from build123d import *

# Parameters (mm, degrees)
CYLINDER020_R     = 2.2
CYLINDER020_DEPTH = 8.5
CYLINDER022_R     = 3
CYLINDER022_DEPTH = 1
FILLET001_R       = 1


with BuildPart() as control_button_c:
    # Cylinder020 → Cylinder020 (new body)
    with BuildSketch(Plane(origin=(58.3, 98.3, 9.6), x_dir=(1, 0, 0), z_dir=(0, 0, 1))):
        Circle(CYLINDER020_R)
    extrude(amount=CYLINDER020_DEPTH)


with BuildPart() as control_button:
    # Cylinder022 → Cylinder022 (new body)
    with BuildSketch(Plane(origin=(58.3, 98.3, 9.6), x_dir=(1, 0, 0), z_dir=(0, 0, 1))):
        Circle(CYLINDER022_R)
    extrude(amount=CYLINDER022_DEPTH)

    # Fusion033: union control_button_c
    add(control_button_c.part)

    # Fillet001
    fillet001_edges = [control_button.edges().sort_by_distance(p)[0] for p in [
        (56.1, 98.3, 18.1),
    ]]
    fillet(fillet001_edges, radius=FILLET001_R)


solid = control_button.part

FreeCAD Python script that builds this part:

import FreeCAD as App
import Part
import Sketcher
from FreeCAD import Vector


def edges_at(feature, points):
    """Names of the edges that pass closest to the given points."""
    edges = feature.Shape.Edges
    near = lambda p: min(range(len(edges)), key=lambda i: edges[i].distToShape(Part.Vertex(*p))[0])
    return sorted({f"Edge{near(p) + 1}" for p in points})

doc = App.newDocument("Part")
params = doc.addObject("Spreadsheet::Sheet", "Params")
for row, (alias, value) in enumerate([
    ("sketch1_diameter", "4.4 mm"),
    ("pad1_length", "8.5 mm"),
    ("sketch2_diameter", "6 mm"),
    ("pad2_length", "1 mm"),
    ("fillet_radius", "1 mm"),
], start=1):
    params.set(f"A{row}", alias)
    params.set(f"B{row}", "=" + value)
    params.setAlias(f"B{row}", alias)

body = doc.addObject("PartDesign::Body", "Body")

sketch1 = body.newObject("Sketcher::SketchObject", "Sketch")
sketch1.AttachmentSupport = (doc.getObject("XY_Plane"), [""])
sketch1.MapMode = "FlatFace"
sketch1.AttachmentOffset = App.Placement(Vector(0, 0, 9.6), App.Rotation())
sketch1.addGeometry(Part.Circle(Vector(58.3, 98.3, 0), Vector(0, 0, 1), 2.2), False)
sketch1.addConstraint([
    Sketcher.Constraint("Diameter", 0, 4.4),
    Sketcher.Constraint("DistanceX", -1, 1, 0, 3, 58.3),
    Sketcher.Constraint("DistanceY", -1, 1, 0, 3, 98.3),
])
sketch1.setExpression("Constraints[0]", "Params.sketch1_diameter")
pad1 = body.newObject("PartDesign::Pad", "Pad")
pad1.Profile = sketch1
pad1.setExpression("Length", "Params.pad1_length")
body2 = doc.addObject("PartDesign::Body", "Body001")

sketch2 = body2.newObject("Sketcher::SketchObject", "Sketch001")
sketch2.AttachmentSupport = (doc.getObject("XY_Plane001"), [""])
sketch2.MapMode = "FlatFace"
sketch2.AttachmentOffset = App.Placement(Vector(0, 0, 9.6), App.Rotation())
sketch2.addGeometry(Part.Circle(Vector(58.3, 98.3, 0), Vector(0, 0, 1), 3), False)
sketch2.addConstraint([
    Sketcher.Constraint("Diameter", 0, 6.0),
    Sketcher.Constraint("DistanceX", -1, 1, 0, 3, 58.3),
    Sketcher.Constraint("DistanceY", -1, 1, 0, 3, 98.3),
])
sketch2.setExpression("Constraints[0]", "Params.sketch2_diameter")
pad2 = body2.newObject("PartDesign::Pad", "Pad001")
pad2.Profile = sketch2
pad2.setExpression("Length", "Params.pad2_length")
doc.recompute()

boolean = body2.newObject("PartDesign::Boolean", "Boolean")
boolean.Type = "Fuse"
boolean.addObjects([body])
doc.recompute()

fillet = body2.newObject("PartDesign::Fillet", "Fillet")
fillet.Base = (boolean, edges_at(boolean, [(56.1, 98.3, 18.1)]))
fillet.setExpression("Radius", "Params.fillet_radius")

doc.recompute()
